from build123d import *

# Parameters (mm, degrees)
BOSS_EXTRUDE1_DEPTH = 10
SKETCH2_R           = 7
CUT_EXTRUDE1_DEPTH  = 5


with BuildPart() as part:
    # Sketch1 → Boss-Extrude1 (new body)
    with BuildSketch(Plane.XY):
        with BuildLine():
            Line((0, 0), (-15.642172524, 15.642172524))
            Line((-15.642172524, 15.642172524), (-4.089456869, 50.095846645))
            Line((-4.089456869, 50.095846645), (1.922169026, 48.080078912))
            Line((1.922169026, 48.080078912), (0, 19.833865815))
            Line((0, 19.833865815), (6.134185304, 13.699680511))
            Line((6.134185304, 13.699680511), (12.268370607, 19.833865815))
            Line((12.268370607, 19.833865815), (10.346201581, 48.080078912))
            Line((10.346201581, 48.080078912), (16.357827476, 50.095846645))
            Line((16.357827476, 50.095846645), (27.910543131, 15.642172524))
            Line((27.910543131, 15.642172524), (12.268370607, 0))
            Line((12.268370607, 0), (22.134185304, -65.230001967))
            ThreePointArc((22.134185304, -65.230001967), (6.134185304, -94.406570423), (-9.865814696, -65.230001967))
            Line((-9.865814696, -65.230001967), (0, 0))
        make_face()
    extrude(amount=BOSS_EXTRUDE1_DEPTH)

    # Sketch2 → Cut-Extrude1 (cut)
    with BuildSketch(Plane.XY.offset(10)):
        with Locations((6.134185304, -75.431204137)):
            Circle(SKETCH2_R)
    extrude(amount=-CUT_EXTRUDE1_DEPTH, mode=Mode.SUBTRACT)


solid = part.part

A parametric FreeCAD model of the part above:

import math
import FreeCAD as App
import Part
import Sketcher
Q = App.Units.Quantity

doc = App.newDocument("Part")
params = doc.addObject("Spreadsheet::Sheet", "Params")
for row, (alias, value) in enumerate([
    ("pad1_length", "10 mm"),
    ("sketch2_diameter", "14 mm"),
    ("pocket1_length", "5 mm"),
], start=1):
    params.set(f"A{row}", alias)
    params.set(f"B{row}", "=" + value)
    params.setAlias(f"B{row}", alias)

body = doc.addObject("PartDesign::Body", "Body")

# Sketch on XY plane
sketch1 = body.newObject("Sketcher::SketchObject", "Sketch")
sketch1.AttachmentSupport = (doc.getObject("XY_Plane"), [""])
sketch1.MapMode = "FlatFace"
sketch1.addGeometry([
    Part.LineSegment(App.Vector(-16, 16, 0), App.Vector(0, 0, 0)),  # 0
    Part.LineSegment(App.Vector(0, 0, 0), App.Vector(-10, -65, 0)),  # 1
    Part.ArcOfCircle(Part.Circle(App.Vector(6, -75, 0), App.Vector(0, 0, 1), 19), math.radians(147), math.radians(393)),  # 2
    Part.LineSegment(App.Vector(22, -65, 0), App.Vector(12, 0, 0)),  # 3
    Part.LineSegment(App.Vector(12, 0, 0), App.Vector(28, 16, 0)),  # 4
    Part.LineSegment(App.Vector(28, 16, 0), App.Vector(16, 50, 0)),  # 5
    Part.LineSegment(App.Vector(16, 50, 0), App.Vector(10, 48, 0)),  # 6
    Part.LineSegment(App.Vector(10, 48, 0), App.Vector(12, 20, 0)),  # 7
    Part.LineSegment(App.Vector(12, 20, 0), App.Vector(6, 14, 0)),  # 8
    Part.LineSegment(App.Vector(6, 14, 0), App.Vector(0, 20, 0)),  # 9
    Part.LineSegment(App.Vector(0, 20, 0), App.Vector(2, 48, 0)),  # 10
    Part.LineSegment(App.Vector(2, 48, 0), App.Vector(-4, 50, 0)),  # 11
    Part.LineSegment(App.Vector(-4, 50, 0), App.Vector(-16, 16, 0)),  # 12
], False)
sketch1.addConstraint([
    Sketcher.Constraint("Coincident", 0, 2, 1, 1),
    Sketcher.Constraint("Coincident", 1, 2, 2, 1),
    Sketcher.Constraint("Coincident", 2, 2, 3, 1),
    Sketcher.Constraint("Coincident", 3, 2, 4, 1),
    Sketcher.Constraint("Coincident", 4, 2, 5, 1),
    Sketcher.Constraint("Coincident", 5, 2, 6, 1),
    Sketcher.Constraint("Coincident", 6, 2, 7, 1),
    Sketcher.Constraint("Coincident", 7, 2, 8, 1),
    Sketcher.Constraint("Coincident", 8, 2, 9, 1),
    Sketcher.Constraint("Coincident", 9, 2, 10, 1),
    Sketcher.Constraint("Coincident", 10, 2, 11, 1),
    Sketcher.Constraint("Coincident", 11, 2, 12, 1),
    Sketcher.Constraint("Coincident", 12, 2, 0, 1),
    Sketcher.Constraint("Coincident", 0, 2, -1, 1),
    Sketcher.Constraint("PointOnObject", 3, 2, -1),
    Sketcher.Constraint("PointOnObject", 9, 2, -2),
    Sketcher.Constraint("Perpendicular", 0, 4),
    Sketcher.Constraint("Perpendicular", 5, 6),
    Sketcher.Constraint("Parallel", 4, 8),
    Sketcher.Constraint("Perpendicular", 8, 9),
    Sketcher.Constraint("Perpendicular", 11, 12),
    Sketcher.Constraint("Horizontal", 1, 2, 2, 2),
    Sketcher.Constraint("Horizontal", 7, 2, 9, 2),
    Sketcher.Constraint("Horizontal", 6, 2, 10, 2),
    Sketcher.Constraint("Horizontal", 5, 2, 11, 2),
    Sketcher.Constraint("Horizontal", 4, 2, 12, 2),
    Sketcher.Constraint("Vertical", 3, 2, 7, 2),
    Sketcher.Constraint("Vertical", 2, 3, 8, 2),
    Sketcher.Constraint("Equal", 1, 3),
    Sketcher.Constraint("Equal", 7, 10),
    Sketcher.Constraint("DistanceX", 1, 2, 2, 3, Q("16 mm")),
    Sketcher.Constraint("DistanceY", 1, 2, -1, 1, Q("65.230002 mm")),
    Sketcher.Constraint("Radius", 2, Q("18.975366 mm")),
    Sketcher.Constraint("DistanceX", -1, 1, 6, 2, Q("10.346202 mm")),
    Sketcher.Constraint("DistanceY", 8, 2, 6, 2, Q("34.380398 mm")),
    Sketcher.Constraint("Distance", 1, Q("65.971869 mm")),
    Sketcher.Constraint("Distance", 6, Q("6.340581 mm")),
    Sketcher.Constraint("DistanceY", -1, 1, 6, 2, Q("48.080079 mm")),
    Sketcher.Constraint("DistanceY", 2, 2, 5, 2, Q("115.325849 mm")),
])
pad1 = body.newObject("PartDesign::Pad", "Pad")
pad1.Profile = sketch1
pad1.setExpression("Length", "Params.pad1_length")

# Sketch on XY plane
sketch2 = body.newObject("Sketcher::SketchObject", "Sketch001")
sketch2.AttachmentSupport = (doc.getObject("XY_Plane"), [""])
sketch2.MapMode = "FlatFace"
sketch2.AttachmentOffset = App.Placement(App.Vector(0, 0, 10), App.Rotation())
sketch2.addGeometry(Part.Circle(App.Vector(6, -75, 0), App.Vector(0, 0, 1), 7), False)
sketch2.addConstraint([
    Sketcher.Constraint("Diameter", 0, Q("14 mm")),
    Sketcher.Constraint("DistanceX", -1, 1, 0, 3, Q("6.134185 mm")),
    Sketcher.Constraint("DistanceY", 0, 3, -1, 1, Q("75.431204 mm")),
])
sketch2.setExpression("Constraints[0]", "Params.sketch2_diameter")
pocket1 = body.newObject("PartDesign::Pocket", "Pocket")
pocket1.Profile = sketch2
pocket1.setExpression("Length", "Params.pocket1_length")

doc.recompute()
